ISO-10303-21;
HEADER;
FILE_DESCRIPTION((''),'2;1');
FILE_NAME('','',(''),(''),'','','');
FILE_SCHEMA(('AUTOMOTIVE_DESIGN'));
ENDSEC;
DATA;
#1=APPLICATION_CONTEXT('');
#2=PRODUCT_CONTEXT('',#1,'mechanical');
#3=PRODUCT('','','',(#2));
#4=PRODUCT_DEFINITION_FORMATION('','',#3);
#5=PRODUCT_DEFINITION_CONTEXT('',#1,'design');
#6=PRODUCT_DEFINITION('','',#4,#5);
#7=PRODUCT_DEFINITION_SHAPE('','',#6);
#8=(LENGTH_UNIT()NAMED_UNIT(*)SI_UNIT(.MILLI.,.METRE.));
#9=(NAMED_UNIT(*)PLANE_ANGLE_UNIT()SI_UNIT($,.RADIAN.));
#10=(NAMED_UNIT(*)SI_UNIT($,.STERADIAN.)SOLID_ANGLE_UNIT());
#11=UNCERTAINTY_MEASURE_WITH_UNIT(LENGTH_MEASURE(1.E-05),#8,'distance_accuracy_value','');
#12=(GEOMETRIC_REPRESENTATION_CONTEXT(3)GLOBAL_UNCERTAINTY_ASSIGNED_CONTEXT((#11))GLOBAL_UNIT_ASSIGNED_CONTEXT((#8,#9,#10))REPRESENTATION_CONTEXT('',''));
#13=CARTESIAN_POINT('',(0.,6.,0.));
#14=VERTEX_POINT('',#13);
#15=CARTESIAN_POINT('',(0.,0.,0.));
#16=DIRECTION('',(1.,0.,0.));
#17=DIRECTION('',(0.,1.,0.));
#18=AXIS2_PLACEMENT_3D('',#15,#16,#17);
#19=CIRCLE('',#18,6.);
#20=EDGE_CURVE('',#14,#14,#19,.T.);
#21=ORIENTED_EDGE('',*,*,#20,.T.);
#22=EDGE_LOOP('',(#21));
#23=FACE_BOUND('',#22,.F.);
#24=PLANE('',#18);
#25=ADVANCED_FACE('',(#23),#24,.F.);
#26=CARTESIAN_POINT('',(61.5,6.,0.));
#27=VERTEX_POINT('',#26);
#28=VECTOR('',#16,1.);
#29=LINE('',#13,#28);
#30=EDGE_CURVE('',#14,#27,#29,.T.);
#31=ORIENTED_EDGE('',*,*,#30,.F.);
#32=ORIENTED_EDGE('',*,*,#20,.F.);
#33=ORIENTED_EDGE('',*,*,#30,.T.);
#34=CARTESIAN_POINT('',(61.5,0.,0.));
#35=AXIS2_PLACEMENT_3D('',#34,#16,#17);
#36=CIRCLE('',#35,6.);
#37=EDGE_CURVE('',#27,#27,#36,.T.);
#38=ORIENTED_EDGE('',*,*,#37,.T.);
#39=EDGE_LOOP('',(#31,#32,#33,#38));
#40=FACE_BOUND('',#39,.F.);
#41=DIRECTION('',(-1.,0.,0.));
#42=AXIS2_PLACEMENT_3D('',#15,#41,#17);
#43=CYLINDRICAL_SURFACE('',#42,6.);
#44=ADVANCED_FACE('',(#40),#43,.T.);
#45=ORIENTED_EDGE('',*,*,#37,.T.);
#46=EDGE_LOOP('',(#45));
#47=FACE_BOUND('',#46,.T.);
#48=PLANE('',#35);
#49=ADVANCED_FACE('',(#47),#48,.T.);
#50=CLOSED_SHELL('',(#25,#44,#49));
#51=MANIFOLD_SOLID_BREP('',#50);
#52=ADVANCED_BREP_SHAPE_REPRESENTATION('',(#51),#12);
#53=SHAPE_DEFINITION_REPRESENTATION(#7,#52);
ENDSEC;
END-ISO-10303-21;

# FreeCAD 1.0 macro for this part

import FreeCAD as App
import Part
import Sketcher

doc = App.newDocument("Part")
body = doc.addObject("PartDesign::Body", "Body")

# Sketch on YZ plane
sketch1 = body.newObject("Sketcher::SketchObject", "Sketch")
sketch1.AttachmentSupport = (doc.getObject("YZ_Plane"), [""])
sketch1.MapMode = "FlatFace"
sketch1.addGeometry(Part.Circle(App.Vector(0, 0, 0), App.Vector(0, 0, 1), 6), False)
sketch1.addConstraint([
    Sketcher.Constraint("Coincident", 0, 3, -1, 1),
    Sketcher.Constraint("Diameter", 0, 12.0),
])
pad1 = body.newObject("PartDesign::Pad", "Pad")
pad1.Profile = sketch1
pad1.Length = 61.5

doc.recompute()
